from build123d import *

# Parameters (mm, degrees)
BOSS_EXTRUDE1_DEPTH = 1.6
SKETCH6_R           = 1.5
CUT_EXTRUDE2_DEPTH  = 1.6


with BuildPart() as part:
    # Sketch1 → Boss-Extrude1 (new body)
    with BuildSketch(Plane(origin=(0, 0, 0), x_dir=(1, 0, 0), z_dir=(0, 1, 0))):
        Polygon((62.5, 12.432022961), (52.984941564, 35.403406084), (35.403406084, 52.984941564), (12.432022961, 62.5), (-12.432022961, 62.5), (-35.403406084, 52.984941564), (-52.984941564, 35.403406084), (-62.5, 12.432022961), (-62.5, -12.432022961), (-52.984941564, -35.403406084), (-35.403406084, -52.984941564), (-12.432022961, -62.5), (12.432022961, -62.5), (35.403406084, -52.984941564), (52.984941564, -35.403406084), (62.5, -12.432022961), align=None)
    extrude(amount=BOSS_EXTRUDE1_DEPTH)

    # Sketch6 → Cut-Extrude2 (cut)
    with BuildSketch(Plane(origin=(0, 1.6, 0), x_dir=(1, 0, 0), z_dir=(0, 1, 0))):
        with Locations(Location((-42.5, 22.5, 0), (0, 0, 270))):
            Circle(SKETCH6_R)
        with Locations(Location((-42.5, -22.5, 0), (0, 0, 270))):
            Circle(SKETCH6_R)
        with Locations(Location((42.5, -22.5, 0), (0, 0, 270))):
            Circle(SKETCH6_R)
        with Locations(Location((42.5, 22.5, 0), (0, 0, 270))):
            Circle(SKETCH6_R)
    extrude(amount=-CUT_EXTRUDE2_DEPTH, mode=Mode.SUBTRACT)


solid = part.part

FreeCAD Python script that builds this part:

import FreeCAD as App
import Part
import Sketcher
from FreeCAD import Vector
Q = App.Units.Quantity


def add_polygon(sketch, points):
    """Adds a closed chain of lines whose ends are joined by coincident constraints."""
    first, n = sketch.GeometryCount, len(points)
    for a, b in zip(points, points[1:] + points[:1]):
        sketch.addGeometry(Part.LineSegment(App.Vector(*a, 0), App.Vector(*b, 0)), False)
    for i in range(n):
        sketch.addConstraint(Sketcher.Constraint("Coincident", first + i, 2, first + (i + 1) % n, 1))

doc = App.newDocument("Part")
body = doc.addObject("PartDesign::Body", "Body")

# Sketch on XZ plane
sketch1 = body.newObject("Sketcher::SketchObject", "Sketch")
sketch1.AttachmentSupport = (doc.getObject("XZ_Plane"), [""])
sketch1.MapMode = "FlatFace"
add_polygon(sketch1, [(62.5, -12.432023), (52.984942, -35.403406), (35.403406, -52.984942), (12.432023, -62.5), (-12.432023, -62.5), (-35.403406, -52.984942), (-52.984942, -35.403406), (-62.5, -12.432023), (-62.5, 12.432023), (-52.984942, 35.403406), (-35.403406, 52.984942), (-12.432023, 62.5), (12.432023, 62.5), (35.403406, 52.984942), (52.984942, 35.403406), (62.5, 12.432023)])  # lines 0-15
sketch1.addConstraint(Sketcher.Constraint("Horizontal", 3))
sketch1.addConstraint(Sketcher.Constraint("Vertical", 7))
sketch1.addConstraint(Sketcher.Constraint("Horizontal", 11))
sketch1.addConstraint(Sketcher.Constraint("Vertical", 15))
sketch1.addConstraint(Sketcher.Constraint("Symmetric", 0, 2, 8, 2, -1, 1))
sketch1.addConstraint(Sketcher.Constraint("Symmetric", 1, 2, 9, 2, -1, 1))
sketch1.addConstraint(Sketcher.Constraint("Symmetric", 2, 2, 10, 2, -1, 1))
sketch1.addConstraint(Sketcher.Constraint("Symmetric", 4, 2, 12, 2, -1, 1))
sketch1.addConstraint(Sketcher.Constraint("Symmetric", 5, 2, 13, 2, -1, 1))
sketch1.addConstraint(Sketcher.Constraint("Symmetric", 6, 2, 14, 2, -1, 1))
sketch1.addConstraint(Sketcher.Constraint("Symmetric", 1, 2, 4, 2, -2))
sketch1.addConstraint(Sketcher.Constraint("Symmetric", 0, 2, 5, 2, -2))
sketch1.addConstraint(Sketcher.Constraint("Perpendicular", 0, 4))
sketch1.addConstraint(Sketcher.Constraint("Perpendicular", 1, 5))
sketch1.addConstraint(Sketcher.Constraint("Perpendicular", 2, 6))
sketch1.addConstraint(Sketcher.Constraint("Perpendicular", 4, 8))
sketch1.addConstraint(Sketcher.Constraint("Perpendicular", 8, 12))
sketch1.addConstraint(Sketcher.Constraint("Horizontal", 7, 2, 14, 2))
sketch1.addConstraint(Sketcher.Constraint("Equal", 11, 7))
sketch1.addConstraint(Sketcher.Constraint("Equal", 0, 1))
sketch1.addConstraint(Sketcher.Constraint("Equal", 1, 2))
sketch1.addConstraint(Sketcher.Constraint("Angle", 0, Q("-112.5 deg")))
sketch1.addConstraint(Sketcher.Constraint("DistanceY", 2, 2, -1, 1, Q("62.5 mm")))
sketch1.addConstraint(Sketcher.Constraint("DistanceX", 3, 2, 3, 1, Q("24.864046 mm")))
pad1 = body.newObject("PartDesign::Pad", "Pad")
pad1.Profile = sketch1
pad1.Length = 1.6
pad1.Reversed = True

# Sketch on XZ plane
sketch2 = body.newObject("Sketcher::SketchObject", "Sketch001")
sketch2.AttachmentSupport = (doc.getObject("XZ_Plane"), [""])
sketch2.MapMode = "FlatFace"
sketch2.AttachmentOffset = App.Placement(Vector(0, 0, -1.6), App.Rotation())
sketch2.addGeometry(Part.Circle(Vector(-42.5, -22.5, 0), Vector(0, 0, 1), 1.5), False)
sketch2.addGeometry(Part.Circle(Vector(-42.5, 22.5, 0), Vector(0, 0, 1), 1.5), False)
sketch2.addGeometry(Part.Circle(Vector(42.5, 22.5, 0), Vector(0, 0, 1), 1.5), False)
sketch2.addGeometry(Part.Circle(Vector(42.5, -22.5, 0), Vector(0, 0, 1), 1.5), False)
sketch2.addConstraint(Sketcher.Constraint("Equal", 0, 1))
sketch2.addConstraint(Sketcher.Constraint("Equal", 1, 2))
sketch2.addConstraint(Sketcher.Constraint("Equal", 2, 3))
sketch2.addConstraint(Sketcher.Constraint("Symmetric", 0, 3, 2, 3, -1, 1))
sketch2.addConstraint(Sketcher.Constraint("Symmetric", 1, 3, 3, 3, -1, 1))
sketch2.addConstraint(Sketcher.Constraint("Symmetric", 1, 3, 2, 3, -2))
sketch2.addConstraint(Sketcher.Constraint("Diameter", 0, Q("3 mm")))
sketch2.addConstraint(Sketcher.Constraint("DistanceY", 0, 3, 1, 3, Q("45 mm")))
sketch2.addConstraint(Sketcher.Constraint("DistanceX", 1, 3, 2, 3, Q("85 mm")))
pocket1 = body.newObject("PartDesign::Pocket", "Pocket")
pocket1.Profile = sketch2
pocket1.Length = 1.6
pocket1.Reversed = True

doc.recompute()
